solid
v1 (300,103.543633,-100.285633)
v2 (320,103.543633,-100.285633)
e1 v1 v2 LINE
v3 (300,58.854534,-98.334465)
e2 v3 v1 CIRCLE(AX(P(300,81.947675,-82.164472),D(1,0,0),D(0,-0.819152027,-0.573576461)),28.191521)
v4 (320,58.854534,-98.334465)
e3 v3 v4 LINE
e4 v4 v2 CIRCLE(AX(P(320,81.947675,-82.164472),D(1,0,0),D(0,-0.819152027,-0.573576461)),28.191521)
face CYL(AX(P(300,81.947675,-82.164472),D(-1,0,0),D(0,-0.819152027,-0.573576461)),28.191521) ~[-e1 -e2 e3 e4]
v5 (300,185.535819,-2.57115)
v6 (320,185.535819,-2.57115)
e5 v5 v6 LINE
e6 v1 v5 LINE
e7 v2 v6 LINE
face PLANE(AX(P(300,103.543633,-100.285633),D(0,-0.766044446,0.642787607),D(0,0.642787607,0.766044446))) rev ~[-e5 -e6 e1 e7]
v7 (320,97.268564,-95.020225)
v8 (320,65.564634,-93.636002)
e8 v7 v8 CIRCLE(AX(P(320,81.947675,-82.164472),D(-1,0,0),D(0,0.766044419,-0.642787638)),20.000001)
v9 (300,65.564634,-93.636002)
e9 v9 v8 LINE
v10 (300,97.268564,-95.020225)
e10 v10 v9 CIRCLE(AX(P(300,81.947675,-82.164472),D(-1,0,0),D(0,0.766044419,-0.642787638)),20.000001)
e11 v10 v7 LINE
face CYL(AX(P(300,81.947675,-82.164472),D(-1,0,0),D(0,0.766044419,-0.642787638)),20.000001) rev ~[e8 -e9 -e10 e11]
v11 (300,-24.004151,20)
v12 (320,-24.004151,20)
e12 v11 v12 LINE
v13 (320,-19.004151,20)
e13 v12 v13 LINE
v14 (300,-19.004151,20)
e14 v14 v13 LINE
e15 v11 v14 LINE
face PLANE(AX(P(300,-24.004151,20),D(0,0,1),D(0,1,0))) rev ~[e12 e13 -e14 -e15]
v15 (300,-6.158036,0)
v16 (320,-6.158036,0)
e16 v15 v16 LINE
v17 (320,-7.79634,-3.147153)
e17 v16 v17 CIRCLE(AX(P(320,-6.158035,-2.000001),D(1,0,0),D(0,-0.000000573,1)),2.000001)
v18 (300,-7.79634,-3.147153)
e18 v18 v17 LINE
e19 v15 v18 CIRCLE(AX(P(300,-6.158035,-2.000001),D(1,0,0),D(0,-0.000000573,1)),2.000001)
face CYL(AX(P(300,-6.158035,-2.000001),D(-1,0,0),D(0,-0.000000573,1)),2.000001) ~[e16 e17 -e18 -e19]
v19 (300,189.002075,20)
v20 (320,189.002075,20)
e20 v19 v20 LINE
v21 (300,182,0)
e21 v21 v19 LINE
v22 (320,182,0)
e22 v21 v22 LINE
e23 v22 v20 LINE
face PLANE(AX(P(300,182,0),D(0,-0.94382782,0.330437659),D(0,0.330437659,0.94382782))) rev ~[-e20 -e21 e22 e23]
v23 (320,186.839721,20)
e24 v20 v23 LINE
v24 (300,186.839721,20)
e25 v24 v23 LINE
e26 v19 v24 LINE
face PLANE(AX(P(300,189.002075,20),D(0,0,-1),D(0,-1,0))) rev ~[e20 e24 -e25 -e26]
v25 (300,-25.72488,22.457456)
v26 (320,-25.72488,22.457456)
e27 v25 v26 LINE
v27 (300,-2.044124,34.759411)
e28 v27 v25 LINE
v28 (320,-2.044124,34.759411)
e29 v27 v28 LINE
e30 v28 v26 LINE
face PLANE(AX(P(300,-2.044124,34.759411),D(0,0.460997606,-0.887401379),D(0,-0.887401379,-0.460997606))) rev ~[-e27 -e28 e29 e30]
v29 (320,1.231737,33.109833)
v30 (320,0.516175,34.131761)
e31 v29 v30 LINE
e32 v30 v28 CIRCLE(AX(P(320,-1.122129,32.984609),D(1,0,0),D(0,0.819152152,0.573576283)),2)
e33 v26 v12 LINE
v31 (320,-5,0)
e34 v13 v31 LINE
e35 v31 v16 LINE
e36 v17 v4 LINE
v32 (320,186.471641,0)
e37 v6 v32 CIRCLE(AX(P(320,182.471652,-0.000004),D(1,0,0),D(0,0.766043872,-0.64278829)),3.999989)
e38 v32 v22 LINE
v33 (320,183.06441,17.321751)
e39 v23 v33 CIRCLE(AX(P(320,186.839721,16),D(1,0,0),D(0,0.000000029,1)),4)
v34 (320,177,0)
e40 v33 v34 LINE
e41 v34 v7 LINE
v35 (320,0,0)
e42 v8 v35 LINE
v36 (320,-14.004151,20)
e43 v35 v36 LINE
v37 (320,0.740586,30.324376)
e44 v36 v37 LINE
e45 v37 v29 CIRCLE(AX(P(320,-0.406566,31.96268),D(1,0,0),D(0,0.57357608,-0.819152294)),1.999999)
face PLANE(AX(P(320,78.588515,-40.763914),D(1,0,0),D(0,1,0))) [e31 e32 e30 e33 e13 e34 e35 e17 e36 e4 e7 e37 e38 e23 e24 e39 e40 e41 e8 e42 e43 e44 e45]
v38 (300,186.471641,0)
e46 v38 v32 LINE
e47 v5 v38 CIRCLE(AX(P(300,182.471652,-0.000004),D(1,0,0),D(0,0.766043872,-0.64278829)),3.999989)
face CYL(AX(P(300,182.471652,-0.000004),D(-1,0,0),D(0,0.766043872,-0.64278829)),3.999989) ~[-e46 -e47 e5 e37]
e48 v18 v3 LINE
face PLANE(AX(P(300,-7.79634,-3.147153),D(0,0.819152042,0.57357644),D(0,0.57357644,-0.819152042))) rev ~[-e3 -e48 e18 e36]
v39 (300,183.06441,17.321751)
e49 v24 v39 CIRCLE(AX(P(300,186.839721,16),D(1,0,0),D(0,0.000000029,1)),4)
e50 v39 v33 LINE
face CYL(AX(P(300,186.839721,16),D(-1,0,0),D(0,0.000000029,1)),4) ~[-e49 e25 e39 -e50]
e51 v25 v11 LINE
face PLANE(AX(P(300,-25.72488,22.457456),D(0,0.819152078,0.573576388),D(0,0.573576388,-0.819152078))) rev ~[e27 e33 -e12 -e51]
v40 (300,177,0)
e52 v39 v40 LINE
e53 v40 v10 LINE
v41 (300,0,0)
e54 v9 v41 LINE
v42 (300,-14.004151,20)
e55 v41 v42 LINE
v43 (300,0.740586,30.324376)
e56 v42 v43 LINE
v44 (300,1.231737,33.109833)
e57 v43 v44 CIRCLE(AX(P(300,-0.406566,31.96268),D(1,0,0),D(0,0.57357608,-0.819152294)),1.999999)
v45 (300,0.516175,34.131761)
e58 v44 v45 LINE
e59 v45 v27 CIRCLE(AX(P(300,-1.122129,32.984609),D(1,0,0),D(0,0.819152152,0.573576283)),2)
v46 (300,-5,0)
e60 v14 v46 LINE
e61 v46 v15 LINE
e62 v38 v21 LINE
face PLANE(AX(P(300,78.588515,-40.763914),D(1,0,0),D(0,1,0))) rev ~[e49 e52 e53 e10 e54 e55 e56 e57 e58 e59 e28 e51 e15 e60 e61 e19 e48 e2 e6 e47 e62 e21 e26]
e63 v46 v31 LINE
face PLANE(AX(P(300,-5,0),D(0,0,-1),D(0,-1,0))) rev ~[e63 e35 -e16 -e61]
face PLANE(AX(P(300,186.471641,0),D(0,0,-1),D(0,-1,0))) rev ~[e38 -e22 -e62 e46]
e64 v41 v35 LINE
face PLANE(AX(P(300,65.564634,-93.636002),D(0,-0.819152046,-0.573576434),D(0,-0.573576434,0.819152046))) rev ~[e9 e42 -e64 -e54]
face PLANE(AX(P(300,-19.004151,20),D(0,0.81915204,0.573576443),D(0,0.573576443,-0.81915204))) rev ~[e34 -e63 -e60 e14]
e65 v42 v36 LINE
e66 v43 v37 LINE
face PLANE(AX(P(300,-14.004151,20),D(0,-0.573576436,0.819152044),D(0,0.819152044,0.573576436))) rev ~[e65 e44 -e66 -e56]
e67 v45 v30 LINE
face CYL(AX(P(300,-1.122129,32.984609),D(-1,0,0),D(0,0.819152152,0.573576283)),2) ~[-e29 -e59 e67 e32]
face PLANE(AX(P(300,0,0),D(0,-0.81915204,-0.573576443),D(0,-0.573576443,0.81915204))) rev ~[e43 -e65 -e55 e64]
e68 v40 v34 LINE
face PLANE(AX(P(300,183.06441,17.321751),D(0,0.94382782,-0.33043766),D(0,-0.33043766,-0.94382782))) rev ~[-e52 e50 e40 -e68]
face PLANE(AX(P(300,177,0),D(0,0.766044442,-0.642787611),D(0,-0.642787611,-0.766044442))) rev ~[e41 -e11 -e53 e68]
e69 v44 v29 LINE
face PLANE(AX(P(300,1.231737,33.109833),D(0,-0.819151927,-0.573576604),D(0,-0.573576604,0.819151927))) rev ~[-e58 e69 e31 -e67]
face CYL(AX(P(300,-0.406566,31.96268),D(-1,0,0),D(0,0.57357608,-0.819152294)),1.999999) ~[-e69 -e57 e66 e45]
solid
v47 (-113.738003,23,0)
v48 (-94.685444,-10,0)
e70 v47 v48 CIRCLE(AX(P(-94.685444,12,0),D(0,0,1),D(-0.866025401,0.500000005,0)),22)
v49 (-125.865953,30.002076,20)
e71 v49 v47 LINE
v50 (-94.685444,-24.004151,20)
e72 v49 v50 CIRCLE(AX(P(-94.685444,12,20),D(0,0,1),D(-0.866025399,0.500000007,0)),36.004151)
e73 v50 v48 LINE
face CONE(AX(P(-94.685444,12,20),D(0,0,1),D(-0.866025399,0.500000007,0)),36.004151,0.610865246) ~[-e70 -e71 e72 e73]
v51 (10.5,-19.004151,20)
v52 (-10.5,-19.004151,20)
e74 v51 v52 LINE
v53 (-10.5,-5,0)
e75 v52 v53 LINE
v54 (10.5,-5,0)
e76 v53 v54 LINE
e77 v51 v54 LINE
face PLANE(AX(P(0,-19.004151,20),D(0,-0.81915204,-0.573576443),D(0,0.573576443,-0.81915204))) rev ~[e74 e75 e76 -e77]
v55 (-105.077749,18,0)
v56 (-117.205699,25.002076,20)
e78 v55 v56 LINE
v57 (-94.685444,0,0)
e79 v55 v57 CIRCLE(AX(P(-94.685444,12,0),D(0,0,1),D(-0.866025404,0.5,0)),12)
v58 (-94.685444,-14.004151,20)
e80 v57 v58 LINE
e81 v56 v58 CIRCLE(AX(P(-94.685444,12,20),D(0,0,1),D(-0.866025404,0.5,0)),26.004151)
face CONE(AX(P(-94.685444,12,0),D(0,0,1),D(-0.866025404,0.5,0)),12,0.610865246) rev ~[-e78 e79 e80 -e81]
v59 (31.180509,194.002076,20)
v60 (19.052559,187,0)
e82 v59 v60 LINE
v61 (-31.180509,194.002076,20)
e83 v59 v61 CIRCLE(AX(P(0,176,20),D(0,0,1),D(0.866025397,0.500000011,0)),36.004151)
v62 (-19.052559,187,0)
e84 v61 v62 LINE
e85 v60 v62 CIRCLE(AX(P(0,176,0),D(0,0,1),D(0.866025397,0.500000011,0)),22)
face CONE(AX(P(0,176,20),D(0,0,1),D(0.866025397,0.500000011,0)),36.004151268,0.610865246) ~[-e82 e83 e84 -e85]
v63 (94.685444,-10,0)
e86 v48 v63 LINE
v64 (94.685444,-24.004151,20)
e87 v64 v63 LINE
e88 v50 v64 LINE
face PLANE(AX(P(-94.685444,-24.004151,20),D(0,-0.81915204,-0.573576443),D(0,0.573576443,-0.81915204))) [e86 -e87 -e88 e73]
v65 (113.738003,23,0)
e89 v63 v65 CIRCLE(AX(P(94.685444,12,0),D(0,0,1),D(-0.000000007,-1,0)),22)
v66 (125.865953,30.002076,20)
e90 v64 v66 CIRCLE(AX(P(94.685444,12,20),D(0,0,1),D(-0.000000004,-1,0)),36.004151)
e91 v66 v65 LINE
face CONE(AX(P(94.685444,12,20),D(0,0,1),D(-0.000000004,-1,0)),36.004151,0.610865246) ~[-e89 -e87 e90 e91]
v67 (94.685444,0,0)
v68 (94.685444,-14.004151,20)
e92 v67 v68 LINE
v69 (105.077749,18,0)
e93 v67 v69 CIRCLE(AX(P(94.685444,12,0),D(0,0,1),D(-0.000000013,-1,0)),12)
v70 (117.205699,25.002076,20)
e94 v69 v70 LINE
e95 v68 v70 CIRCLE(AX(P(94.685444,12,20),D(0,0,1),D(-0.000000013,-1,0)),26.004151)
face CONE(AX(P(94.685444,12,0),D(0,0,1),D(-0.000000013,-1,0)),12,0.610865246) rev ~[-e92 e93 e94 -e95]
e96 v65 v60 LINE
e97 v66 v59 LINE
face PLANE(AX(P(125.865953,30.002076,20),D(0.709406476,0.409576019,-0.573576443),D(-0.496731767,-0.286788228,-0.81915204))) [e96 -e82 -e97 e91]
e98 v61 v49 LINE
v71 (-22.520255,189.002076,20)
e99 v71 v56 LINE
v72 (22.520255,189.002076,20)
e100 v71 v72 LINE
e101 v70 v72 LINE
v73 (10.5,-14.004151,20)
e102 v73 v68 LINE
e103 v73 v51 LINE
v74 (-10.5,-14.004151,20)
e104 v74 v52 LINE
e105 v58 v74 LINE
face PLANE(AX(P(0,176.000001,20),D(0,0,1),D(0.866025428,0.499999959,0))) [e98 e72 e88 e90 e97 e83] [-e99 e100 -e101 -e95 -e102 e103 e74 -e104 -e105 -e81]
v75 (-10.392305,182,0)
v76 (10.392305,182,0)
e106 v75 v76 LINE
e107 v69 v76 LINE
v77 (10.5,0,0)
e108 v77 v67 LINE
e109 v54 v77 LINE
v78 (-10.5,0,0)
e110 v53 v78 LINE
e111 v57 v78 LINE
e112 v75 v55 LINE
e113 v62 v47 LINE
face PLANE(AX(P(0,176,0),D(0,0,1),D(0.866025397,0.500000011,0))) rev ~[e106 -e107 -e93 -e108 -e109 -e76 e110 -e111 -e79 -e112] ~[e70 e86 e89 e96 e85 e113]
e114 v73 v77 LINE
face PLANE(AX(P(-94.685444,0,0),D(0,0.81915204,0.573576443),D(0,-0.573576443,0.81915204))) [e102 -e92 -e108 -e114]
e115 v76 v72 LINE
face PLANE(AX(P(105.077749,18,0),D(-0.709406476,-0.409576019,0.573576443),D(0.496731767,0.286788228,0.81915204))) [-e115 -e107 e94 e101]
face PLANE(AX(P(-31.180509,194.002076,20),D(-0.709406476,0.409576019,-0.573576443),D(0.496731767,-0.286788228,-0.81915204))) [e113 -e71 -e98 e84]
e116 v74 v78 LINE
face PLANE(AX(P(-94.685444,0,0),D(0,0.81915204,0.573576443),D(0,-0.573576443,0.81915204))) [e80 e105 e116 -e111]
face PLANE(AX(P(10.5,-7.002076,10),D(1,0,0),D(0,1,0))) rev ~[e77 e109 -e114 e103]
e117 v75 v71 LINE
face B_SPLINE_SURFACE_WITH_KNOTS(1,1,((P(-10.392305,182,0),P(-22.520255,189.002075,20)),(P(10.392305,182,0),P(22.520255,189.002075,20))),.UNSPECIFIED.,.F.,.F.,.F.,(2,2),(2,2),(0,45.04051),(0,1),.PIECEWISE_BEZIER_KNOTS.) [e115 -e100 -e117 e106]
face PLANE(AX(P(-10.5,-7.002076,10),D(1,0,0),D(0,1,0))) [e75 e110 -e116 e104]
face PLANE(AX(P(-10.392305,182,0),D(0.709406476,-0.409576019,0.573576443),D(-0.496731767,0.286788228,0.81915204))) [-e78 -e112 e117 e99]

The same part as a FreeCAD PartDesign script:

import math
import FreeCAD as App
import Part
import Sketcher
Q = App.Units.Quantity


def add_polygon(sketch, points):
    """Adds a closed chain of lines whose ends are joined by coincident constraints."""
    first, n = sketch.GeometryCount, len(points)
    for a, b in zip(points, points[1:] + points[:1]):
        sketch.addGeometry(Part.LineSegment(App.Vector(*a, 0), App.Vector(*b, 0)), False)
    for i in range(n):
        sketch.addConstraint(Sketcher.Constraint("Coincident", first + i, 2, first + (i + 1) % n, 1))

doc = App.newDocument("Part")
body = doc.addObject("PartDesign::Body", "Body")

# Sketch on YZ plane
sketch1 = body.newObject("Sketcher::SketchObject", "Sketch")
sketch1.AttachmentSupport = (doc.getObject("YZ_Plane"), [""])
sketch1.MapMode = "FlatFace"
add_polygon(sketch1, [(-10, 0), (0, 0), (-14.004151, 20), (-24.004151, 20)])  # lines 0-3
sketch1.addConstraint(Sketcher.Constraint("Horizontal", 0))
sketch1.addConstraint(Sketcher.Constraint("Horizontal", 2))
sketch1.addConstraint(Sketcher.Constraint("Coincident", 0, 2, -1, 1))
sketch1.addConstraint(Sketcher.Constraint("Parallel", 1, 3))
sketch1.addConstraint(Sketcher.Constraint("DistanceX", 0, 1, 0, 2, Q("10 mm")))
sketch1.addConstraint(Sketcher.Constraint("Angle", 1, Q("125 deg")))
sketch1.addConstraint(Sketcher.Constraint("DistanceY", -1, 1, 1, 2, Q("20 mm")))

# Sketch on XY plane
sketch2 = body.newObject("Sketcher::SketchObject", "Sketch001")
sketch2.AttachmentSupport = (doc.getObject("XY_Plane"), [""])
sketch2.MapMode = "FlatFace"
sketch2.addGeometry(Part.LineSegment(App.Vector(-94.685444, 0, 0), App.Vector(94.685444, 0, 0)), False)
sketch2.addGeometry(Part.ArcOfCircle(Part.Circle(App.Vector(94.685444, 12, 0), App.Vector(0, 0, 1), 12), math.radians(-90.000001), math.radians(30)), False)
sketch2.addGeometry(Part.LineSegment(App.Vector(105.077749, 18, 0), App.Vector(10.392305, 182, 0)), False)
sketch2.addGeometry(Part.ArcOfCircle(Part.Circle(App.Vector(0, 176, 0), App.Vector(0, 0, 1), 12), math.radians(30.000001), math.radians(149.999999)), False)
sketch2.addGeometry(Part.LineSegment(App.Vector(-10.392305, 182, 0), App.Vector(-105.077749, 18, 0)), False)
sketch2.addGeometry(Part.ArcOfCircle(Part.Circle(App.Vector(-94.685444, 12, 0), App.Vector(0, 0, 1), 12), math.radians(150), math.radians(270.000001)), False)
sketch2.addConstraint(Sketcher.Constraint("Tangent", 0, 2, 1, 1))
sketch2.addConstraint(Sketcher.Constraint("Tangent", 1, 2, 2, 1))
sketch2.addConstraint(Sketcher.Constraint("Tangent", 2, 2, 3, 1))
sketch2.addConstraint(Sketcher.Constraint("Tangent", 3, 2, 4, 1))
sketch2.addConstraint(Sketcher.Constraint("Tangent", 4, 2, 5, 1))
sketch2.addConstraint(Sketcher.Constraint("Tangent", 5, 2, 0, 1))
sketch2.addConstraint(Sketcher.Constraint("Horizontal", 0))
sketch2.addConstraint(Sketcher.Constraint("Equal", 1, 3))
sketch2.addConstraint(Sketcher.Constraint("Equal", 3, 5))
sketch2.addConstraint(Sketcher.Constraint("Symmetric", 0, 2, 5, 2, -1, 1))
sketch2.addConstraint(Sketcher.Constraint("PointOnObject", 3, 3, -2))
sketch2.addConstraint(Sketcher.Constraint("Radius", 1, Q("12 mm")))
sketch2.addConstraint(Sketcher.Constraint("Angle", 2, Q("120 deg")))
sketch2.addConstraint(Sketcher.Constraint("DistanceY", -1, 1, 3, 3, Q("176 mm")))
doc.recompute()

additivepipe = body.newObject("PartDesign::AdditivePipe", "AdditivePipe")
additivepipe.Profile = sketch1
additivepipe.Spine = (sketch2, ["Edge1", "Edge2", "Edge3", "Edge4", "Edge5", "Edge6"])

# Sketch on XY plane
sketch3 = body.newObject("Sketcher::SketchObject", "Sketch002")
sketch3.AttachmentSupport = (doc.getObject("XY_Plane"), [""])
sketch3.MapMode = "FlatFace"
sketch3.addGeometry(Part.ArcOfCircle(Part.Circle(App.Vector(0, 176, 0), App.Vector(0, 0, 1), 12), math.radians(30.000001), math.radians(149.999999)), False)
sketch3.addGeometry(Part.LineSegment(App.Vector(-10.392305, 182, 0), App.Vector(10.392305, 182, 0)), False)
sketch3.addConstraint(Sketcher.Constraint("Coincident", 0, 1, 1, 2))
sketch3.addConstraint(Sketcher.Constraint("Coincident", 1, 1, 0, 2))
sketch3.addConstraint(Sketcher.Constraint("Horizontal", 1))
sketch3.addConstraint(Sketcher.Constraint("PointOnObject", 0, 3, -2))
sketch3.addConstraint(Sketcher.Constraint("Radius", 0, Q("12 mm")))
sketch3.addConstraint(Sketcher.Constraint("DistanceY", -1, 1, 0, 3, Q("176 mm")))
sketch3.addConstraint(Sketcher.Constraint("DistanceY", -1, 1, 0, 1, Q("182 mm")))

# Sketch on XY plane
sketch4 = body.newObject("Sketcher::SketchObject", "Sketch003")
sketch4.AttachmentSupport = (doc.getObject("XY_Plane"), [""])
sketch4.MapMode = "FlatFace"
sketch4.AttachmentOffset = App.Placement(App.Vector(0, 0, 20), App.Rotation())
sketch4.addGeometry(Part.LineSegment(App.Vector(-22.520255, 189.002075, 0), App.Vector(22.520255, 189.002075, 0)), False)
sketch4.addGeometry(Part.ArcOfCircle(Part.Circle(App.Vector(0, 176.000001, 0), App.Vector(0, 0, 1), 26.00415), math.radians(29.999997), math.radians(150.000003)), False)
sketch4.addConstraint(Sketcher.Constraint("Coincident", 0, 1, 1, 2))
sketch4.addConstraint(Sketcher.Constraint("Coincident", 1, 1, 0, 2))
sketch4.addConstraint(Sketcher.Constraint("Horizontal", 0))
sketch4.addConstraint(Sketcher.Constraint("PointOnObject", 1, 3, -2))
sketch4.addConstraint(Sketcher.Constraint("DistanceY", -1, 1, 1, 3, Q("176.000001 mm")))
sketch4.addConstraint(Sketcher.Constraint("Radius", 1, Q("26.00415 mm")))
sketch4.addConstraint(Sketcher.Constraint("DistanceX", 0, 1, 0, 2, Q("45.04051 mm")))

additiveloft = body.newObject("PartDesign::AdditiveLoft", "AdditiveLoft")
additiveloft.Profile = sketch3
additiveloft.Sections = [sketch4]

# Sketch on YZ plane
sketch5 = body.newObject("Sketcher::SketchObject", "Sketch004")
sketch5.AttachmentSupport = (doc.getObject("YZ_Plane"), [""])
sketch5.MapMode = "FlatFace"
add_polygon(sketch5, [(-19.004151, 20), (-5, 0), (5, 0), (-9.004151, 20)])  # lines 0-3
sketch5.addConstraint(Sketcher.Constraint("Horizontal", 1))
sketch5.addConstraint(Sketcher.Constraint("Horizontal", 3))
sketch5.addConstraint(Sketcher.Constraint("Symmetric", 0, 2, 1, 2, -1, 1))
sketch5.addConstraint(Sketcher.Constraint("Parallel", 0, 2))
sketch5.addConstraint(Sketcher.Constraint("DistanceX", 1, 1, 1, 2, Q("10 mm")))
sketch5.addConstraint(Sketcher.Constraint("Angle", 0, Q("-55 deg")))
sketch5.addConstraint(Sketcher.Constraint("DistanceY", -1, 1, 2, 2, Q("20 mm")))
pocket1 = body.newObject("PartDesign::Pocket", "Pocket")
pocket1.Profile = sketch5
pocket1.Length = 21
pocket1.Midplane = True
body2 = doc.addObject("PartDesign::Body", "Body001")

# Sketch on YZ plane
sketch6 = body2.newObject("Sketcher::SketchObject", "Sketch005")
sketch6.AttachmentSupport = (doc.getObject("YZ_Plane001"), [""])
sketch6.MapMode = "FlatFace"
sketch6.AttachmentOffset = App.Placement(App.Vector(0, 0, 300), App.Rotation())
sketch6.addGeometry(Part.LineSegment(App.Vector(186.471641, 0, 0), App.Vector(182, 0, 0)), False)
sketch6.addGeometry(Part.LineSegment(App.Vector(182, 0, 0), App.Vector(189.002075, 20, 0)), False)
sketch6.addGeometry(Part.LineSegment(App.Vector(189.002075, 20, 0), App.Vector(186.839721, 20, 0)), False)
sketch6.addGeometry(Part.ArcOfCircle(Part.Circle(App.Vector(186.839721, 16, 0), App.Vector(0, 0, 1), 4), math.radians(89.999998), math.radians(160.704657)), False)
sketch6.addGeometry(Part.LineSegment(App.Vector(183.06441, 17.321751, 0), App.Vector(177, 0, 0)), False)
sketch6.addGeometry(Part.LineSegment(App.Vector(177, 0, 0), App.Vector(97.268564, -95.020225, 0)), False)
sketch6.addGeometry(Part.ArcOfCircle(Part.Circle(App.Vector(81.947675, -82.164472, 0), App.Vector(0, 0, 1), 20.000001), math.radians(-144.999996), math.radians(-40.000002)), False)
sketch6.addGeometry(Part.LineSegment(App.Vector(65.564634, -93.636002, 0), App.Vector(0, 0, 0)), False)
sketch6.addGeometry(Part.LineSegment(App.Vector(0, 0, 0), App.Vector(-14.004151, 20, 0)), False)
sketch6.addGeometry(Part.LineSegment(App.Vector(-14.004151, 20, 0), App.Vector(0.740586, 30.324376, 0)), False)
sketch6.addGeometry(Part.ArcOfCircle(Part.Circle(App.Vector(-0.406566, 31.96268, 0), App.Vector(0, 0, 1), 1.999999), math.radians(-55.000025), math.radians(35.000034)), False)
sketch6.addGeometry(Part.LineSegment(App.Vector(1.231737, 33.109833, 0), App.Vector(0.516175, 34.131761, 0)), False)
sketch6.addGeometry(Part.ArcOfCircle(Part.Circle(App.Vector(-1.122129, 32.984609, 0), App.Vector(0, 0, 1), 2), math.radians(34.999989), math.radians(117.451503)), False)
sketch6.addGeometry(Part.LineSegment(App.Vector(-2.044124, 34.759411, 0), App.Vector(-25.72488, 22.457456, 0)), False)
sketch6.addGeometry(Part.LineSegment(App.Vector(-25.72488, 22.457456, 0), App.Vector(-24.004151, 20, 0)), False)
sketch6.addGeometry(Part.LineSegment(App.Vector(-24.004151, 20, 0), App.Vector(-19.004151, 20, 0)), False)
sketch6.addGeometry(Part.LineSegment(App.Vector(-19.004151, 20, 0), App.Vector(-5, 0, 0)), False)
sketch6.addGeometry(Part.LineSegment(App.Vector(-5, 0, 0), App.Vector(-6.158036, 0, 0)), False)
sketch6.addGeometry(Part.ArcOfCircle(Part.Circle(App.Vector(-6.158035, -2.000001, 0), App.Vector(0, 0, 1), 2.000001), math.radians(90.000033), math.radians(214.999972)), False)
sketch6.addGeometry(Part.LineSegment(App.Vector(-7.79634, -3.147153, 0), App.Vector(58.854534, -98.334465, 0)), False)
sketch6.addGeometry(Part.ArcOfCircle(Part.Circle(App.Vector(81.947675, -82.164472, 0), App.Vector(0, 0, 1), 28.191521), math.radians(-144.999998), math.radians(-40.000001)), False)
sketch6.addGeometry(Part.LineSegment(App.Vector(103.543633, -100.285633, 0), App.Vector(185.535819, -2.57115, 0)), False)
sketch6.addGeometry(Part.ArcOfCircle(Part.Circle(App.Vector(182.471652, -0.000004, 0), App.Vector(0, 0, 1), 3.999989), math.radians(-40.000051), math.radians(0.000054)), False)
sketch6.addConstraint(Sketcher.Constraint("Coincident", 0, 2, 1, 1))
sketch6.addConstraint(Sketcher.Constraint("Coincident", 1, 2, 2, 1))
sketch6.addConstraint(Sketcher.Constraint("Tangent", 2, 2, 3, 1))
sketch6.addConstraint(Sketcher.Constraint("Tangent", 3, 2, 4, 1))
sketch6.addConstraint(Sketcher.Constraint("Coincident", 4, 2, 5, 1))
sketch6.addConstraint(Sketcher.Constraint("Tangent", 5, 2, 6, 2))
sketch6.addConstraint(Sketcher.Constraint("Tangent", 6, 1, 7, 1))
sketch6.addConstraint(Sketcher.Constraint("Coincident", 7, 2, 8, 1))
sketch6.addConstraint(Sketcher.Constraint("Coincident", 8, 2, 9, 1))
sketch6.addConstraint(Sketcher.Constraint("Tangent", 9, 2, 10, 1))
sketch6.addConstraint(Sketcher.Constraint("Tangent", 10, 2, 11, 1))
sketch6.addConstraint(Sketcher.Constraint("Tangent", 11, 2, 12, 1))
sketch6.addConstraint(Sketcher.Constraint("Tangent", 12, 2, 13, 1))
sketch6.addConstraint(Sketcher.Constraint("Coincident", 13, 2, 14, 1))
sketch6.addConstraint(Sketcher.Constraint("Coincident", 14, 2, 15, 1))
sketch6.addConstraint(Sketcher.Constraint("Coincident", 15, 2, 16, 1))
sketch6.addConstraint(Sketcher.Constraint("Coincident", 16, 2, 17, 1))
sketch6.addConstraint(Sketcher.Constraint("Tangent", 17, 2, 18, 1))
sketch6.addConstraint(Sketcher.Constraint("Tangent", 18, 2, 19, 1))
sketch6.addConstraint(Sketcher.Constraint("Tangent", 19, 2, 20, 1))
sketch6.addConstraint(Sketcher.Constraint("Tangent", 20, 2, 21, 1))
sketch6.addConstraint(Sketcher.Constraint("Tangent", 21, 2, 22, 1))
sketch6.addConstraint(Sketcher.Constraint("Coincident", 22, 2, 0, 1))
sketch6.addConstraint(Sketcher.Constraint("Horizontal", 0))
sketch6.addConstraint(Sketcher.Constraint("Horizontal", 2))
sketch6.addConstraint(Sketcher.Constraint("Horizontal", 15))
sketch6.addConstraint(Sketcher.Constraint("Horizontal", 17))
sketch6.addConstraint(Sketcher.Constraint("Coincident", 7, 2, -1, 1))
sketch6.addConstraint(Sketcher.Constraint("Coincident", 20, 3, 6, 3))
sketch6.addConstraint(Sketcher.Constraint("Equal", 10, 12))
sketch6.addConstraint(Sketcher.Constraint("Equal", 12, 18))
sketch6.addConstraint(Sketcher.Constraint("PointOnObject", 0, 2, -1))
sketch6.addConstraint(Sketcher.Constraint("PointOnObject", 4, 2, -1))
sketch6.addConstraint(Sketcher.Constraint("PointOnObject", 16, 2, -1))
sketch6.addConstraint(Sketcher.Constraint("Parallel", 1, 4))
sketch6.addConstraint(Sketcher.Constraint("Parallel", 7, 8))
sketch6.addConstraint(Sketcher.Constraint("Perpendicular", 8, 9))
sketch6.addConstraint(Sketcher.Constraint("Perpendicular", 9, 11))
sketch6.addConstraint(Sketcher.Constraint("Parallel", 11, 14))
sketch6.addConstraint(Sketcher.Constraint("Parallel", 14, 16))
sketch6.addConstraint(Sketcher.Constraint("Parallel", 16, 19))
sketch6.addConstraint(Sketcher.Constraint("Parallel", 5, 21))
sketch6.addConstraint(Sketcher.Constraint("Horizontal", 2, 2, 8, 2))
sketch6.addConstraint(Sketcher.Constraint("Horizontal", 8, 2, 14, 2))
sketch6.addConstraint(Sketcher.Constraint("Radius", 3, Q("4 mm")))
sketch6.addConstraint(Sketcher.Constraint("Radius", 6, Q("20.000001 mm")))
sketch6.addConstraint(Sketcher.Constraint("Radius", 10, Q("1.999999 mm")))
sketch6.addConstraint(Sketcher.Constraint("DistanceX", 15, 1, 15, 2, Q("5 mm")))
sketch6.addConstraint(Sketcher.Constraint("Angle", 5, Q("-130 deg")))
sketch6.addConstraint(Sketcher.Constraint("Angle", 7, Q("125 deg")))
sketch6.addConstraint(Sketcher.Constraint("Distance", 9, Q("18 mm")))
sketch6.addConstraint(Sketcher.Constraint("Distance", 14, Q("3 mm")))
sketch6.addConstraint(Sketcher.Constraint("DistanceY", -1, 1, 3, 3, Q("16 mm")))
sketch6.addConstraint(Sketcher.Constraint("DistanceX", -1, 1, 0, 2, Q("182 mm")))
sketch6.addConstraint(Sketcher.Constraint("DistanceX", -1, 1, 4, 2, Q("177 mm")))
sketch6.addConstraint(Sketcher.Constraint("DistanceX", 16, 2, -1, 1, Q("5 mm")))
sketch6.addConstraint(Sketcher.Constraint("Radius", 20, Q("28.191521 mm")))
sketch6.addConstraint(Sketcher.Constraint("Radius", 22, Q("3.999989 mm")))
sketch6.addConstraint(Sketcher.Constraint("DistanceX", 0, 2, 0, 1, Q("4.471641 mm")))
sketch6.addConstraint(Sketcher.Constraint("DistanceX", 6, 3, 1, 2, Q("107.0544 mm")))
sketch6.addConstraint(Sketcher.Constraint("DistanceX", 12, 2, 11, 2, Q("2.560299 mm")))
pad1 = body2.newObject("PartDesign::Pad", "Pad")
pad1.Profile = sketch6
pad1.Length = 20

doc.recompute()
